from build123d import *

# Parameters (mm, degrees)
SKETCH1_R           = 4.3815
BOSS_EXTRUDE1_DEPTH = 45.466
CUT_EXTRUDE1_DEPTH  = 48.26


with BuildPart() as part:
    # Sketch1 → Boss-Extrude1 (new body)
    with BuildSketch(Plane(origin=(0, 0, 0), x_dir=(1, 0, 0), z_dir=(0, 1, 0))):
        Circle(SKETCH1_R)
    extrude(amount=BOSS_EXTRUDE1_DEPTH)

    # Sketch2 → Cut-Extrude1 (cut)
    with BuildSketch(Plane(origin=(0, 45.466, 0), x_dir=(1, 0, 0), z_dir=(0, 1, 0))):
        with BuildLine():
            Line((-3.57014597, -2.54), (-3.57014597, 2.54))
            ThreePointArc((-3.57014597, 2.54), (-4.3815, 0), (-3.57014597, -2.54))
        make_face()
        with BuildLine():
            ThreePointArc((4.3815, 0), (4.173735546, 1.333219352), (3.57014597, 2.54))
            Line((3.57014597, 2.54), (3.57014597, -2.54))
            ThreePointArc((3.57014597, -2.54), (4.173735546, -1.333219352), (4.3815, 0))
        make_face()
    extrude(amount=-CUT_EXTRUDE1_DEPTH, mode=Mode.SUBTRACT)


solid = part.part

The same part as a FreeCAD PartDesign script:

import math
import FreeCAD as App
import Part
import Sketcher
from FreeCAD import Vector
Q = App.Units.Quantity

doc = App.newDocument("Part")
body = doc.addObject("PartDesign::Body", "Body")

sketch1 = body.newObject("Sketcher::SketchObject", "Sketch")
sketch1.AttachmentSupport = (doc.getObject("XZ_Plane"), [""])
sketch1.MapMode = "FlatFace"
sketch1.addGeometry(Part.Circle(Vector(0, 0, 0), Vector(0, 0, 1), 4.4), False)
sketch1.addConstraint([
    Sketcher.Constraint("Coincident", 0, 3, -1, 1),
    Sketcher.Constraint("Diameter", 0, Q("0.345 in")),
])
pad1 = body.newObject("PartDesign::Pad", "Pad")
pad1.Profile = sketch1
pad1.Length = Q("1.79 in")
pad1.Reversed = True

sketch2 = body.newObject("Sketcher::SketchObject", "Sketch001")
sketch2.AttachmentSupport = (doc.getObject("XZ_Plane"), [""])
sketch2.MapMode = "FlatFace"
sketch2.AttachmentOffset = App.Placement(Vector(0, 0, -1.79 * 25.4), App.Rotation())
sketch2.addGeometry([
    Part.LineSegment(Vector(-3.6, 2.5, 0), Vector(-3.6, -2.5, 0)),
    Part.ArcOfCircle(Part.Circle(Vector(0, 0, 0), Vector(0, 0, 1), 4.4), math.radians(145), math.radians(215)),
    Part.ArcOfCircle(Part.Circle(Vector(0, 0, 0), Vector(0, 0, 1), 4.4), math.radians(-35), math.radians(0)),
    Part.LineSegment(Vector(3.6, -2.5, 0), Vector(3.6, 2.5, 0)),
    Part.ArcOfCircle(Part.Circle(Vector(0, 0, 0), Vector(0, 0, 1), 4.4), math.radians(0), math.radians(35)),
], False)
sketch2.addConstraint([
    Sketcher.Constraint("Coincident", 0, 1, 1, 1),
    Sketcher.Constraint("Coincident", 1, 2, 0, 2),
    Sketcher.Constraint("Coincident", 2, 1, 3, 1),
    Sketcher.Constraint("Coincident", 3, 2, 4, 2),
    Sketcher.Constraint("Tangent", 4, 1, 2, 2),
    Sketcher.Constraint("Vertical", 0),
    Sketcher.Constraint("Vertical", 3),
    Sketcher.Constraint("Coincident", 1, 3, -1, 1),
    Sketcher.Constraint("Coincident", 2, 3, -1, 1),
    Sketcher.Constraint("Equal", 1, 2),
    Sketcher.Constraint("Equal", 2, 4),
    Sketcher.Constraint("PointOnObject", 4, 1, -1),
    Sketcher.Constraint("Horizontal", 1, 2, 2, 1),
    Sketcher.Constraint("DistanceY", 0, 2, 0, 1, Q("0.2 in")),
    Sketcher.Constraint("Radius", 1, Q("0.1725 in")),
])
pocket1 = body.newObject("PartDesign::Pocket", "Pocket")
pocket1.Profile = sketch2
pocket1.Length = Q("1.9 in")
pocket1.Reversed = True

doc.recompute()
